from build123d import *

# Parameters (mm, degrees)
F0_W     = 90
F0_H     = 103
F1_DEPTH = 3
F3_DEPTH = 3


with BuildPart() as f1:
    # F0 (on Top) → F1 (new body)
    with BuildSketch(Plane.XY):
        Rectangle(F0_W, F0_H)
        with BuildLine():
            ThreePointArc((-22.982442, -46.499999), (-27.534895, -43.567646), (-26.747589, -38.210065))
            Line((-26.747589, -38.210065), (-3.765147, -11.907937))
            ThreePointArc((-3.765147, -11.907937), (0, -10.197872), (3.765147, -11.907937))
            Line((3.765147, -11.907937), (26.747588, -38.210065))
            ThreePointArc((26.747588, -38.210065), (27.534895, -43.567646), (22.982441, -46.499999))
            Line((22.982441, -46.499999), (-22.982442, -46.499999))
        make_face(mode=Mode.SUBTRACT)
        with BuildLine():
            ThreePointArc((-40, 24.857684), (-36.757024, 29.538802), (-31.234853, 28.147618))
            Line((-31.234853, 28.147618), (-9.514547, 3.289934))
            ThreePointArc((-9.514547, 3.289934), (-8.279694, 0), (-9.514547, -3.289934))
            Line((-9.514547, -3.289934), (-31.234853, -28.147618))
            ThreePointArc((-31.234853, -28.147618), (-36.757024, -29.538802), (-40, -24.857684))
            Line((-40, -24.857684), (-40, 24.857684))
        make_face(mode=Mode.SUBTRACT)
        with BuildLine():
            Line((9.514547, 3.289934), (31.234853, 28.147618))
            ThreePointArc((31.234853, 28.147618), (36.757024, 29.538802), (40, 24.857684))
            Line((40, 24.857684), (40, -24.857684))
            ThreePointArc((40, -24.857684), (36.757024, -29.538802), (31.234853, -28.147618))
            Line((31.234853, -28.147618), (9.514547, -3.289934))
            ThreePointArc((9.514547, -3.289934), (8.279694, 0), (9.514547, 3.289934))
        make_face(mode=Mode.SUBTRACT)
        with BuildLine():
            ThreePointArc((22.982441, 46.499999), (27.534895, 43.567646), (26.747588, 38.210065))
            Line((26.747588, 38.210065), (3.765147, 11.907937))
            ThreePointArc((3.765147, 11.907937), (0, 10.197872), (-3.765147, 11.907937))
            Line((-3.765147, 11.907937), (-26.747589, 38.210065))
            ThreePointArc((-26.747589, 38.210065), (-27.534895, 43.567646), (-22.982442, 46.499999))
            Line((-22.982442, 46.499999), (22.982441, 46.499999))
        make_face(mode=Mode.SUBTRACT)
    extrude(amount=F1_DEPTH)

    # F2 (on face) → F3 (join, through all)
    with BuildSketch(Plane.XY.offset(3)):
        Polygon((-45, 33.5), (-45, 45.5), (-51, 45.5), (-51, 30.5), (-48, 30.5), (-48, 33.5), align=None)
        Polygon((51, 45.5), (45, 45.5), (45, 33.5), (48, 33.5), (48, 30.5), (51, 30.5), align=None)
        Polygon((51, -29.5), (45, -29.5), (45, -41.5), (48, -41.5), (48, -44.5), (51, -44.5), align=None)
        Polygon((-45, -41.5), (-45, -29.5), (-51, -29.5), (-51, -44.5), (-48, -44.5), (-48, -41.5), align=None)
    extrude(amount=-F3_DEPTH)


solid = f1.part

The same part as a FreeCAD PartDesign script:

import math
import FreeCAD as App
import Part
import Sketcher

doc = App.newDocument("Part")
body = doc.addObject("PartDesign::Body", "Body")

sketch1 = doc.addObject("Sketcher::SketchObject", "Sketch")
body.addObject(sketch1)
sketch1.AttachmentSupport = (doc.XY_Plane, [""])
sketch1.MapMode = "FlatFace"
sketch1.addGeometry([
    Part.LineSegment(App.Vector(-45, 51.5, 0), App.Vector(-45, -51.5, 0)),
    Part.LineSegment(App.Vector(-45, -51.5, 0), App.Vector(45, -51.5, 0)),
    Part.LineSegment(App.Vector(45, -51.5, 0), App.Vector(45, 51.5, 0)),
    Part.LineSegment(App.Vector(45, 51.5, 0), App.Vector(-45, 51.5, 0)),
    Part.LineSegment(App.Vector(23, -46.5, 0), App.Vector(-23, -46.5, 0)),
    Part.ArcOfCircle(Part.Circle(App.Vector(-23, -41.5, 0), App.Vector(0, 0, 1), 5), math.radians(139), math.radians(270)),
    Part.LineSegment(App.Vector(-26.7, -38.2, 0), App.Vector(-3.8, -11.9, 0)),
    Part.ArcOfCircle(Part.Circle(App.Vector(0, -15.2, 0), App.Vector(0, 0, 1), 5), math.radians(41), math.radians(139)),
    Part.LineSegment(App.Vector(3.8, -11.9, 0), App.Vector(26.7, -38.2, 0)),
    Part.ArcOfCircle(Part.Circle(App.Vector(23, -41.5, 0), App.Vector(0, 0, 1), 5), math.radians(-90), math.radians(41)),
    Part.LineSegment(App.Vector(-40, -24.9, 0), App.Vector(-40, 24.9, 0)),
    Part.ArcOfCircle(Part.Circle(App.Vector(-35, 24.9, 0), App.Vector(0, 0, 1), 5), math.radians(41), math.radians(180)),
    Part.LineSegment(App.Vector(-31.2, 28.1, 0), App.Vector(-9.5, 3.3, 0)),
    Part.ArcOfCircle(Part.Circle(App.Vector(-13.3, 0, 0), App.Vector(0, 0, 1), 5), math.radians(-41), math.radians(41)),
    Part.LineSegment(App.Vector(-9.5, -3.3, 0), App.Vector(-31.2, -28.1, 0)),
    Part.ArcOfCircle(Part.Circle(App.Vector(-35, -24.9, 0), App.Vector(0, 0, 1), 5), math.radians(-180), math.radians(-41)),
    Part.LineSegment(App.Vector(-23, 46.5, 0), App.Vector(23, 46.5, 0)),
    Part.ArcOfCircle(Part.Circle(App.Vector(23, 41.5, 0), App.Vector(0, 0, 1), 5), math.radians(-41), math.radians(90)),
    Part.LineSegment(App.Vector(26.7, 38.2, 0), App.Vector(3.8, 11.9, 0)),
    Part.ArcOfCircle(Part.Circle(App.Vector(0, 15.2, 0), App.Vector(0, 0, 1), 5), math.radians(-139), math.radians(-41)),
    Part.LineSegment(App.Vector(-3.8, 11.9, 0), App.Vector(-26.7, 38.2, 0)),
    Part.ArcOfCircle(Part.Circle(App.Vector(-23, 41.5, 0), App.Vector(0, 0, 1), 5), math.radians(90), math.radians(221)),
    Part.ArcOfCircle(Part.Circle(App.Vector(13.3, 0, 0), App.Vector(0, 0, 1), 5), math.radians(139), math.radians(221)),
    Part.LineSegment(App.Vector(9.5, 3.3, 0), App.Vector(31.2, 28.1, 0)),
    Part.ArcOfCircle(Part.Circle(App.Vector(35, 24.9, 0), App.Vector(0, 0, 1), 5), math.radians(0), math.radians(139)),
    Part.LineSegment(App.Vector(40, 24.9, 0), App.Vector(40, -24.9, 0)),
    Part.ArcOfCircle(Part.Circle(App.Vector(35, -24.9, 0), App.Vector(0, 0, 1), 5), math.radians(-139), math.radians(0)),
    Part.LineSegment(App.Vector(31.2, -28.1, 0), App.Vector(9.5, -3.3, 0)),
], False)
sketch1.addConstraint([
    Sketcher.Constraint("Coincident", 0, 2, 1, 1),
    Sketcher.Constraint("Coincident", 1, 2, 2, 1),
    Sketcher.Constraint("Coincident", 2, 2, 3, 1),
    Sketcher.Constraint("Coincident", 3, 2, 0, 1),
    Sketcher.Constraint("Tangent", 4, 2, 5, 2),
    Sketcher.Constraint("Tangent", 5, 1, 6, 1),
    Sketcher.Constraint("Tangent", 6, 2, 7, 2),
    Sketcher.Constraint("Tangent", 7, 1, 8, 1),
    Sketcher.Constraint("Tangent", 8, 2, 9, 2),
    Sketcher.Constraint("Tangent", 9, 1, 4, 1),
    Sketcher.Constraint("Tangent", 10, 2, 11, 2),
    Sketcher.Constraint("Tangent", 11, 1, 12, 1),
    Sketcher.Constraint("Tangent", 12, 2, 13, 2),
    Sketcher.Constraint("Tangent", 13, 1, 14, 1),
    Sketcher.Constraint("Tangent", 14, 2, 15, 2),
    Sketcher.Constraint("Tangent", 15, 1, 10, 1),
    Sketcher.Constraint("Tangent", 16, 2, 17, 2),
    Sketcher.Constraint("Tangent", 17, 1, 18, 1),
    Sketcher.Constraint("Tangent", 18, 2, 19, 2),
    Sketcher.Constraint("Tangent", 19, 1, 20, 1),
    Sketcher.Constraint("Tangent", 20, 2, 21, 2),
    Sketcher.Constraint("Tangent", 21, 1, 16, 1),
    Sketcher.Constraint("Tangent", 22, 1, 23, 1),
    Sketcher.Constraint("Tangent", 23, 2, 24, 2),
    Sketcher.Constraint("Tangent", 24, 1, 25, 1),
    Sketcher.Constraint("Tangent", 25, 2, 26, 2),
    Sketcher.Constraint("Tangent", 26, 1, 27, 1),
    Sketcher.Constraint("Tangent", 27, 2, 22, 2),
    Sketcher.Constraint("Vertical", 0),
    Sketcher.Constraint("Horizontal", 1),
    Sketcher.Constraint("Vertical", 2),
    Sketcher.Constraint("Horizontal", 3),
    Sketcher.Constraint("Horizontal", 4),
    Sketcher.Constraint("Vertical", 10),
    Sketcher.Constraint("Horizontal", 16),
    Sketcher.Constraint("Vertical", 25),
    Sketcher.Constraint("Equal", 5, 7),
    Sketcher.Constraint("Equal", 7, 9),
    Sketcher.Constraint("Equal", 9, 11),
    Sketcher.Constraint("Equal", 11, 13),
    Sketcher.Constraint("Equal", 13, 15),
    Sketcher.Constraint("Equal", 15, 17),
    Sketcher.Constraint("Equal", 17, 19),
    Sketcher.Constraint("Equal", 19, 21),
    Sketcher.Constraint("Equal", 21, 22),
    Sketcher.Constraint("Equal", 22, 24),
    Sketcher.Constraint("Equal", 24, 26),
    Sketcher.Constraint("Symmetric", 5, 3, 17, 3, -1, 1),
    Sketcher.Constraint("Symmetric", 7, 3, 19, 3, -1, 1),
    Sketcher.Constraint("Symmetric", 13, 3, 22, 3, -1, 1),
    Sketcher.Constraint("Symmetric", 15, 3, 24, 3, -1, 1),
    Sketcher.Constraint("Symmetric", 0, 2, 2, 2, -1, 1),
    Sketcher.Constraint("Symmetric", 6, 2, 7, 1, -2),
    Sketcher.Constraint("Symmetric", 12, 2, 22, 1, -2),
    Sketcher.Constraint("Parallel", 8, 12),
    Sketcher.Constraint("Parallel", 12, 20),
    Sketcher.Constraint("Parallel", 20, 27),
    Sketcher.Constraint("Radius", 5, 5.0),
    Sketcher.Constraint("DistanceX", 1, 1, 1, 2, 90.0),
    Sketcher.Constraint("DistanceY", 0, 2, 0, 1, 103.0),
    Sketcher.Constraint("DistanceX", 11, 3, -1, 1, 35.0),
    Sketcher.Constraint("DistanceY", 9, 3, 17, 3, 82.999999),
    Sketcher.Constraint("DistanceX", 12, 2, 6, 2, 5.7494),
    Sketcher.Constraint("Distance", 6, 34.928421),
    Sketcher.Constraint("DistanceX", 4, 2, 4, 1, 45.964883),
])
pad1 = doc.addObject("PartDesign::Pad", "Pad")
body.addObject(pad1)
pad1.Profile = sketch1
pad1.Length = 3

sketch2 = doc.addObject("Sketcher::SketchObject", "Sketch001")
body.addObject(sketch2)
sketch2.AttachmentSupport = (doc.XY_Plane, [""])
sketch2.MapMode = "FlatFace"
sketch2.AttachmentOffset = App.Placement(App.Vector(0, 0, 3), App.Rotation())
sketch2.addGeometry([
    Part.LineSegment(App.Vector(-45, 33.5, 0), App.Vector(-45, 45.5, 0)),
    Part.LineSegment(App.Vector(-45, 45.5, 0), App.Vector(-51, 45.5, 0)),
    Part.LineSegment(App.Vector(-51, 45.5, 0), App.Vector(-51, 30.5, 0)),
    Part.LineSegment(App.Vector(-51, 30.5, 0), App.Vector(-48, 30.5, 0)),
    Part.LineSegment(App.Vector(-48, 30.5, 0), App.Vector(-48, 33.5, 0)),
    Part.LineSegment(App.Vector(-48, 33.5, 0), App.Vector(-45, 33.5, 0)),
    Part.LineSegment(App.Vector(51, 45.5, 0), App.Vector(45, 45.5, 0)),
    Part.LineSegment(App.Vector(45, 45.5, 0), App.Vector(45, 33.5, 0)),
    Part.LineSegment(App.Vector(45, 33.5, 0), App.Vector(48, 33.5, 0)),
    Part.LineSegment(App.Vector(48, 33.5, 0), App.Vector(48, 30.5, 0)),
    Part.LineSegment(App.Vector(48, 30.5, 0), App.Vector(51, 30.5, 0)),
    Part.LineSegment(App.Vector(51, 30.5, 0), App.Vector(51, 45.5, 0)),
    Part.LineSegment(App.Vector(51, -29.5, 0), App.Vector(45, -29.5, 0)),
    Part.LineSegment(App.Vector(45, -29.5, 0), App.Vector(45, -41.5, 0)),
    Part.LineSegment(App.Vector(45, -41.5, 0), App.Vector(48, -41.5, 0)),
    Part.LineSegment(App.Vector(48, -41.5, 0), App.Vector(48, -44.5, 0)),
    Part.LineSegment(App.Vector(48, -44.5, 0), App.Vector(51, -44.5, 0)),
    Part.LineSegment(App.Vector(51, -44.5, 0), App.Vector(51, -29.5, 0)),
    Part.LineSegment(App.Vector(-45, -41.5, 0), App.Vector(-45, -29.5, 0)),
    Part.LineSegment(App.Vector(-45, -29.5, 0), App.Vector(-51, -29.5, 0)),
    Part.LineSegment(App.Vector(-51, -29.5, 0), App.Vector(-51, -44.5, 0)),
    Part.LineSegment(App.Vector(-51, -44.5, 0), App.Vector(-48, -44.5, 0)),
    Part.LineSegment(App.Vector(-48, -44.5, 0), App.Vector(-48, -41.5, 0)),
    Part.LineSegment(App.Vector(-48, -41.5, 0), App.Vector(-45, -41.5, 0)),
], False)
sketch2.addConstraint([
    Sketcher.Constraint("Coincident", 0, 2, 1, 1),
    Sketcher.Constraint("Coincident", 1, 2, 2, 1),
    Sketcher.Constraint("Coincident", 2, 2, 3, 1),
    Sketcher.Constraint("Coincident", 3, 2, 4, 1),
    Sketcher.Constraint("Coincident", 4, 2, 5, 1),
    Sketcher.Constraint("Coincident", 5, 2, 0, 1),
    Sketcher.Constraint("Coincident", 6, 2, 7, 1),
    Sketcher.Constraint("Coincident", 7, 2, 8, 1),
    Sketcher.Constraint("Coincident", 8, 2, 9, 1),
    Sketcher.Constraint("Coincident", 9, 2, 10, 1),
    Sketcher.Constraint("Coincident", 10, 2, 11, 1),
    Sketcher.Constraint("Coincident", 11, 2, 6, 1),
    Sketcher.Constraint("Coincident", 12, 2, 13, 1),
    Sketcher.Constraint("Coincident", 13, 2, 14, 1),
    Sketcher.Constraint("Coincident", 14, 2, 15, 1),
    Sketcher.Constraint("Coincident", 15, 2, 16, 1),
    Sketcher.Constraint("Coincident", 16, 2, 17, 1),
    Sketcher.Constraint("Coincident", 17, 2, 12, 1),
    Sketcher.Constraint("Coincident", 18, 2, 19, 1),
    Sketcher.Constraint("Coincident", 19, 2, 20, 1),
    Sketcher.Constraint("Coincident", 20, 2, 21, 1),
    Sketcher.Constraint("Coincident", 21, 2, 22, 1),
    Sketcher.Constraint("Coincident", 22, 2, 23, 1),
    Sketcher.Constraint("Coincident", 23, 2, 18, 1),
    Sketcher.Constraint("Vertical", 0),
    Sketcher.Constraint("Horizontal", 1),
    Sketcher.Constraint("Vertical", 2),
    Sketcher.Constraint("Horizontal", 3),
    Sketcher.Constraint("Vertical", 4),
    Sketcher.Constraint("Horizontal", 5),
    Sketcher.Constraint("Horizontal", 6),
    Sketcher.Constraint("Vertical", 7),
    Sketcher.Constraint("Horizontal", 8),
    Sketcher.Constraint("Vertical", 9),
    Sketcher.Constraint("Horizontal", 10),
    Sketcher.Constraint("Vertical", 11),
    Sketcher.Constraint("Horizontal", 12),
    Sketcher.Constraint("Vertical", 13),
    Sketcher.Constraint("Horizontal", 14),
    Sketcher.Constraint("Vertical", 15),
    Sketcher.Constraint("Horizontal", 16),
    Sketcher.Constraint("Vertical", 17),
    Sketcher.Constraint("Vertical", 18),
    Sketcher.Constraint("Horizontal", 19),
    Sketcher.Constraint("Vertical", 20),
    Sketcher.Constraint("Horizontal", 21),
    Sketcher.Constraint("Vertical", 22),
    Sketcher.Constraint("Horizontal", 23),
    Sketcher.Constraint("Symmetric", 0, 2, 6, 2, -2),
    Sketcher.Constraint("Symmetric", 4, 2, 8, 2, -2),
    Sketcher.Constraint("Symmetric", 2, 2, 10, 2, -2),
    Sketcher.Constraint("Symmetric", 12, 2, 18, 2, -2),
    Sketcher.Constraint("Symmetric", 16, 2, 20, 2, -2),
    Sketcher.Constraint("Symmetric", 14, 2, 22, 2, -2),
    Sketcher.Constraint("Vertical", 7, 2, 12, 2),
    Sketcher.Constraint("Vertical", 9, 2, 14, 2),
    Sketcher.Constraint("Vertical", 11, 2, 16, 2),
    Sketcher.Constraint("Equal", 3, 5),
    Sketcher.Constraint("Equal", 23, 4),
    Sketcher.Constraint("Equal", 7, 13),
    Sketcher.Constraint("Equal", 9, 15),
    Sketcher.Constraint("DistanceX", 1, 2, 1, 1, 6.0),
    Sketcher.Constraint("DistanceY", 0, 1, 0, 2, 12.0),
    Sketcher.Constraint("DistanceX", 0, 2, -1, 1, 45.0),
    Sketcher.Constraint("DistanceY", 12, 2, 9, 2, 60.0),
    Sketcher.Constraint("DistanceY", -1, 1, 0, 2, 45.5),
])
pad2 = doc.addObject("PartDesign::Pad", "Pad001")
body.addObject(pad2)
pad2.Profile = sketch2
pad2.Type = "UpToLast"
pad2.Reversed = True

doc.recompute()
